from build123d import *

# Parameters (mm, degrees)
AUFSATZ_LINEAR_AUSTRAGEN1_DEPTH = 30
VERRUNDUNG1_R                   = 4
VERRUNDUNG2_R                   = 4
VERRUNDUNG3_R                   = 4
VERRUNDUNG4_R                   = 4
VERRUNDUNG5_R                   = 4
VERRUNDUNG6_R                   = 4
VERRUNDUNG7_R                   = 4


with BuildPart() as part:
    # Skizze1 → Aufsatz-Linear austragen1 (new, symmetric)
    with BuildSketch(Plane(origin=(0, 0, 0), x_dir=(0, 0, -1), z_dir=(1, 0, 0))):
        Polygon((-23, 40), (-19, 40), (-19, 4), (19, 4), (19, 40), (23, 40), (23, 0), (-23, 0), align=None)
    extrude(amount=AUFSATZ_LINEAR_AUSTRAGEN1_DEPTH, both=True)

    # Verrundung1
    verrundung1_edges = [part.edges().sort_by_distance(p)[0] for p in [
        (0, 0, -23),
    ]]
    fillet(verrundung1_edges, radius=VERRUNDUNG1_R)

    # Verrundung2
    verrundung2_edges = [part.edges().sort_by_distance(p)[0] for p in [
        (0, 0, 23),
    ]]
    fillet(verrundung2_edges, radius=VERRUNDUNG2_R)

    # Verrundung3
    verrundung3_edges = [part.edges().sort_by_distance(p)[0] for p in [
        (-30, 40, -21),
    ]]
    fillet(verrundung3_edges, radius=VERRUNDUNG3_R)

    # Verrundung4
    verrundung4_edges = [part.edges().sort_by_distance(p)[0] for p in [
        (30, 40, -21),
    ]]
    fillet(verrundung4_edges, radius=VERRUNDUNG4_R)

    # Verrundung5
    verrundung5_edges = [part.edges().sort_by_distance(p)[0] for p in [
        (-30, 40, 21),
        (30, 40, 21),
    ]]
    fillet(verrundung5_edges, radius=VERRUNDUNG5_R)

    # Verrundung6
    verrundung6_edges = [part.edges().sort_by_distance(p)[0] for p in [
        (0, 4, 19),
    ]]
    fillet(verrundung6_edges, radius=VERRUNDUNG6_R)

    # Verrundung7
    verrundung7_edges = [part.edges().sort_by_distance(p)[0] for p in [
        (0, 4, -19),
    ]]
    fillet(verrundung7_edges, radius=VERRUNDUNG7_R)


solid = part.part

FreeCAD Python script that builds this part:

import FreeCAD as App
import Part
import Sketcher

V = App.Vector
Q = App.Units.Quantity


def edges_at(feature, points):
    """Names of the edges that pass closest to the given points."""
    edges = feature.Shape.Edges
    near = lambda p: min(range(len(edges)), key=lambda i: edges[i].distToShape(Part.Vertex(*p))[0])
    return sorted({f"Edge{near(p) + 1}" for p in points})

doc = App.newDocument("Part")
params = doc.addObject("Spreadsheet::Sheet", "Params")
for row, (alias, value) in enumerate([
    ("sketch1_width", "40 mm"),
    ("sketch1_width2", "36 mm"),
    ("sketch1_height", "4 mm"),
    ("sketch1_height2", "46 mm"),
    ("pad1_length", "60 mm"),
    ("fillet_radius", "4 mm"),
    ("fillet2_radius", "4 mm"),
    ("fillet3_radius", "4 mm"),
    ("fillet4_radius", "4 mm"),
    ("fillet5_radius", "4 mm"),
    ("fillet6_radius", "4 mm"),
    ("fillet7_radius", "4 mm"),
], start=1):
    params.set(f"A{row}", alias)
    params.set(f"B{row}", "=" + value)
    params.setAlias(f"B{row}", alias)

body = doc.addObject("PartDesign::Body", "Body")

sketch1 = body.newObject("Sketcher::SketchObject", "Sketch")
sketch1.AttachmentSupport = (doc.getObject("YZ_Plane"), [""])
sketch1.MapMode = "FlatFace"
sketch1.addGeometry([
    Part.LineSegment(V(40, 19, 0), V(40, 23, 0)),
    Part.LineSegment(V(40, 23, 0), V(0, 23, 0)),
    Part.LineSegment(V(0, 23, 0), V(0, -23, 0)),
    Part.LineSegment(V(0, -23, 0), V(40, -23, 0)),
    Part.LineSegment(V(40, -23, 0), V(40, -19, 0)),
    Part.LineSegment(V(40, -19, 0), V(4, -19, 0)),
    Part.LineSegment(V(4, -19, 0), V(4, 19, 0)),
    Part.LineSegment(V(4, 19, 0), V(40, 19, 0)),
], False)
sketch1.addConstraint([
    Sketcher.Constraint("Coincident", 0, 2, 1, 1),
    Sketcher.Constraint("Coincident", 1, 2, 2, 1),
    Sketcher.Constraint("Coincident", 2, 2, 3, 1),
    Sketcher.Constraint("Coincident", 3, 2, 4, 1),
    Sketcher.Constraint("Coincident", 4, 2, 5, 1),
    Sketcher.Constraint("Coincident", 5, 2, 6, 1),
    Sketcher.Constraint("Coincident", 6, 2, 7, 1),
    Sketcher.Constraint("Coincident", 7, 2, 0, 1),
    Sketcher.Constraint("Vertical", 0),
    Sketcher.Constraint("Horizontal", 1),
    Sketcher.Constraint("Vertical", 2),
    Sketcher.Constraint("Horizontal", 3),
    Sketcher.Constraint("Vertical", 4),
    Sketcher.Constraint("Horizontal", 5),
    Sketcher.Constraint("Vertical", 6),
    Sketcher.Constraint("Horizontal", 7),
    Sketcher.Constraint("Symmetric", 1, 2, 2, 2, -1, 1),
    Sketcher.Constraint("Symmetric", 4, 2, 7, 2, -1),
    Sketcher.Constraint("DistanceX", 1, 2, 1, 1, Q("40 mm")),
    Sketcher.Constraint("DistanceX", 5, 2, 5, 1, Q("36 mm")),
    Sketcher.Constraint("DistanceY", 0, 1, 0, 2, Q("4 mm")),
    Sketcher.Constraint("DistanceY", 2, 2, 2, 1, Q("46 mm")),
])
sketch1.setExpression("Constraints[18]", "Params.sketch1_width")
sketch1.setExpression("Constraints[19]", "Params.sketch1_width2")
sketch1.setExpression("Constraints[20]", "Params.sketch1_height")
sketch1.setExpression("Constraints[21]", "Params.sketch1_height2")
pad1 = body.newObject("PartDesign::Pad", "Pad")
pad1.Profile = sketch1
pad1.setExpression("Length", "Params.pad1_length")
pad1.Midplane = True
doc.recompute()

fillet = body.newObject("PartDesign::Fillet", "Fillet")
fillet.Base = (pad1, edges_at(pad1, [(0, 0, -23)]))
fillet.setExpression("Radius", "Params.fillet_radius")
doc.recompute()

fillet2 = body.newObject("PartDesign::Fillet", "Fillet001")
fillet2.Base = (fillet, edges_at(fillet, [(0, 0, 23)]))
fillet2.setExpression("Radius", "Params.fillet2_radius")
doc.recompute()

fillet3 = body.newObject("PartDesign::Fillet", "Fillet002")
fillet3.Base = (fillet2, edges_at(fillet2, [(-30, 40, -21)]))
fillet3.setExpression("Radius", "Params.fillet3_radius")
doc.recompute()

fillet4 = body.newObject("PartDesign::Fillet", "Fillet003")
fillet4.Base = (fillet3, edges_at(fillet3, [(30, 40, -21)]))
fillet4.setExpression("Radius", "Params.fillet4_radius")
doc.recompute()

fillet5 = body.newObject("PartDesign::Fillet", "Fillet004")
fillet5.Base = (fillet4, edges_at(fillet4, [(-30, 40, 21), (30, 40, 21)]))
fillet5.setExpression("Radius", "Params.fillet5_radius")
doc.recompute()

fillet6 = body.newObject("PartDesign::Fillet", "Fillet005")
fillet6.Base = (fillet5, edges_at(fillet5, [(0, 4, 19)]))
fillet6.setExpression("Radius", "Params.fillet6_radius")
doc.recompute()

fillet7 = body.newObject("PartDesign::Fillet", "Fillet006")
fillet7.Base = (fillet6, edges_at(fillet6, [(0, 4, -19)]))
fillet7.setExpression("Radius", "Params.fillet7_radius")

doc.recompute()
